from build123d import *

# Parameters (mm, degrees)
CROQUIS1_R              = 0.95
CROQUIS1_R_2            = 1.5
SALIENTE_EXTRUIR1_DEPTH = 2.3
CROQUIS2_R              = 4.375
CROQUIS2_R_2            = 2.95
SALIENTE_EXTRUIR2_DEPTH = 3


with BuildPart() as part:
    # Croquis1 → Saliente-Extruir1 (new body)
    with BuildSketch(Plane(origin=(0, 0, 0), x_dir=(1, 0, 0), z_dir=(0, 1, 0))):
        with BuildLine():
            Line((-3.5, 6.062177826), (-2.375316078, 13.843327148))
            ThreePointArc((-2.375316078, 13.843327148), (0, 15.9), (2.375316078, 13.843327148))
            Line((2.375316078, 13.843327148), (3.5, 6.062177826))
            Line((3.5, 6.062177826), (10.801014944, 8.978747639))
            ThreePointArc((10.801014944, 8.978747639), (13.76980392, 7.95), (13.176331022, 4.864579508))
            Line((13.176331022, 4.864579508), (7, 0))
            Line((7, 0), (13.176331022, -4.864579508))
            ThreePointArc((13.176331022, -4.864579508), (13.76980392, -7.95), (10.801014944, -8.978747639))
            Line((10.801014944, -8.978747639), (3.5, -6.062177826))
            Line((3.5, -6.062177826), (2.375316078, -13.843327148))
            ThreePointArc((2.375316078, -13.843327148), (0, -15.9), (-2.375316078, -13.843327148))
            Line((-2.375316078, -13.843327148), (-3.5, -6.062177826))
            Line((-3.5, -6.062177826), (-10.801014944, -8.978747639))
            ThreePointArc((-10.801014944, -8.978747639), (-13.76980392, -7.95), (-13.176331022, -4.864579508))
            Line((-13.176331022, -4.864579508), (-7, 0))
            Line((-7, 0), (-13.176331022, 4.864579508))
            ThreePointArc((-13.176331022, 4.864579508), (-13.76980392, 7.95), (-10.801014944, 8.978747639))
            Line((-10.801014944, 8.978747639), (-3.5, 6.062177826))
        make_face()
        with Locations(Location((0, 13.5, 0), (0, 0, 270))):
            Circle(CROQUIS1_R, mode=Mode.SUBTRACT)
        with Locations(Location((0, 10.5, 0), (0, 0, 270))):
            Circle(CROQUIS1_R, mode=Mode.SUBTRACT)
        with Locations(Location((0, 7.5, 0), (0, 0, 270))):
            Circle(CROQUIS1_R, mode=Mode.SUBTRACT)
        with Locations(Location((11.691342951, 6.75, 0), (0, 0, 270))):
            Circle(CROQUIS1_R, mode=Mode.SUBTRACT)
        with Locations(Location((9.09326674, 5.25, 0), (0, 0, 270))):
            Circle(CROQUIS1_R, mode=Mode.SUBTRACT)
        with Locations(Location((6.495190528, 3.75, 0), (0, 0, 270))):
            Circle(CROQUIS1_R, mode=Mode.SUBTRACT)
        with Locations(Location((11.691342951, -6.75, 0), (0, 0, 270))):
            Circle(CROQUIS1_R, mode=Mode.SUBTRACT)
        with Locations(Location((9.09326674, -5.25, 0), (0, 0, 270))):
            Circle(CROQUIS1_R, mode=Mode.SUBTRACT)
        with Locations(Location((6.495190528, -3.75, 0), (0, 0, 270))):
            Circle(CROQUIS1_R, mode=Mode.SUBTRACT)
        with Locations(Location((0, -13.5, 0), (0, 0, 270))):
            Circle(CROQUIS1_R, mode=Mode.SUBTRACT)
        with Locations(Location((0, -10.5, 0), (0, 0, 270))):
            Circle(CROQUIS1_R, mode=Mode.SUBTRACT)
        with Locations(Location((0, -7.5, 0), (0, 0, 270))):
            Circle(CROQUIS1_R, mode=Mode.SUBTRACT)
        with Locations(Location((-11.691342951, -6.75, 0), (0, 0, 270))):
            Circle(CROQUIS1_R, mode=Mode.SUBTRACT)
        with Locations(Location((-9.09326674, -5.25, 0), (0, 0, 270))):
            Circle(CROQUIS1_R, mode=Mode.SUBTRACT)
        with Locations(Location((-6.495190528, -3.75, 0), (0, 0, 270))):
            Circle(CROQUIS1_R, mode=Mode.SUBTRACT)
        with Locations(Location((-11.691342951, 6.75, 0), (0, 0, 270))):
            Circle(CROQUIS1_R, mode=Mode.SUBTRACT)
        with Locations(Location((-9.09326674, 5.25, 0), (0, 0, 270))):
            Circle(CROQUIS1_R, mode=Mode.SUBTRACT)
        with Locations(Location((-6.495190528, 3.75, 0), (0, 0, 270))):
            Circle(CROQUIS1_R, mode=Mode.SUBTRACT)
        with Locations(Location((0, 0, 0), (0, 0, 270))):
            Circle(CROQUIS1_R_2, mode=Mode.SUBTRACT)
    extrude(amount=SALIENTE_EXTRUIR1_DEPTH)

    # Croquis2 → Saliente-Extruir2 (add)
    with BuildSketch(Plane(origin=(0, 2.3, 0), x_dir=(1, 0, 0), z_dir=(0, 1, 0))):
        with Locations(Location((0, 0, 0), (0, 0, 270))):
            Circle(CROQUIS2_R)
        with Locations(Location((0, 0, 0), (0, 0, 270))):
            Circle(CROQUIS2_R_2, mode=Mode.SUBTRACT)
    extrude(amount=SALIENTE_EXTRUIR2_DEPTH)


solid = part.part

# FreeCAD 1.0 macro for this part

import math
import FreeCAD as App
import Part
import Sketcher

V = App.Vector

doc = App.newDocument("Part")
params = doc.addObject("Spreadsheet::Sheet", "Params")
for row, (alias, value) in enumerate([
    ("sketch1_diameter", "3 mm"),
    ("sketch1_diameter2", "1.9 mm"),
    ("sketch1_radius", "2.4 mm"),
    ("pad1_length", "2.3 mm"),
    ("sketch2_diameter", "5.9 mm"),
    ("sketch2_diameter2", "8.75 mm"),
    ("pad2_length", "3 mm"),
], start=1):
    params.set(f"A{row}", alias)
    params.set(f"B{row}", "=" + value)
    params.setAlias(f"B{row}", alias)

body = doc.addObject("PartDesign::Body", "Body")

# Sketch on XZ plane
sketch1 = body.newObject("Sketcher::SketchObject", "Sketch")
sketch1.AttachmentSupport = (doc.getObject("XZ_Plane"), [""])
sketch1.MapMode = "FlatFace"
sketch1.addGeometry(Part.LineSegment(V(-2.4, -13.8, 0), V(-3.5, -6.1, 0)), False)
sketch1.addGeometry(Part.LineSegment(V(-3.5, -6.1, 0), V(-10.8, -9, 0)), False)
sketch1.addGeometry(Part.ArcOfCircle(Part.Circle(V(-11.7, -6.8, 0), V(0, 0, 1), 2.4), math.radians(128), math.radians(292)), False)
sketch1.addGeometry(Part.LineSegment(V(-13.2, -4.9, 0), V(-7, 0, 0)), False)
sketch1.addGeometry(Part.LineSegment(V(-7, 0, 0), V(-13.2, 4.9, 0)), False)
sketch1.addGeometry(Part.ArcOfCircle(Part.Circle(V(-11.7, 6.8, 0), V(0, 0, 1), 2.4), math.radians(68), math.radians(232)), False)
sketch1.addGeometry(Part.LineSegment(V(-10.8, 9, 0), V(-3.5, 6.1, 0)), False)
sketch1.addGeometry(Part.LineSegment(V(-3.5, 6.1, 0), V(-2.4, 13.8, 0)), False)
sketch1.addGeometry(Part.ArcOfCircle(Part.Circle(V(0, 13.5, 0), V(0, 0, 1), 2.4), math.radians(8), math.radians(172)), False)
sketch1.addGeometry(Part.LineSegment(V(2.4, 13.8, 0), V(3.5, 6.1, 0)), False)
sketch1.addGeometry(Part.LineSegment(V(3.5, 6.1, 0), V(10.8, 9, 0)), False)
sketch1.addGeometry(Part.ArcOfCircle(Part.Circle(V(11.7, 6.8, 0), V(0, 0, 1), 2.4), math.radians(-52), math.radians(112)), False)
sketch1.addGeometry(Part.LineSegment(V(13.2, 4.9, 0), V(7, 0, 0)), False)
sketch1.addGeometry(Part.LineSegment(V(7, 0, 0), V(13.2, -4.9, 0)), False)
sketch1.addGeometry(Part.ArcOfCircle(Part.Circle(V(11.7, -6.8, 0), V(0, 0, 1), 2.4), math.radians(-112), math.radians(52)), False)
sketch1.addGeometry(Part.LineSegment(V(10.8, -9, 0), V(3.5, -6.1, 0)), False)
sketch1.addGeometry(Part.LineSegment(V(3.5, -6.1, 0), V(2.4, -13.8, 0)), False)
sketch1.addGeometry(Part.ArcOfCircle(Part.Circle(V(0, -13.5, 0), V(0, 0, 1), 2.4), math.radians(-172), math.radians(-8)), False)
sketch1.addGeometry(Part.Circle(V(11.7, 6.8, 0), V(0, 0, 1), 0.9), False)
sketch1.addGeometry(Part.Circle(V(9.1, 5.2, 0), V(0, 0, 1), 0.9), False)
sketch1.addGeometry(Part.Circle(V(6.5, 3.8, 0), V(0, 0, 1), 0.9), False)
sketch1.addGeometry(Part.Circle(V(0, 13.5, 0), V(0, 0, 1), 0.9), False)
sketch1.addGeometry(Part.Circle(V(0, 10.5, 0), V(0, 0, 1), 0.9), False)
sketch1.addGeometry(Part.Circle(V(0, 7.5, 0), V(0, 0, 1), 0.9), False)
sketch1.addGeometry(Part.Circle(V(-6.5, 3.8, 0), V(0, 0, 1), 0.9), False)
sketch1.addGeometry(Part.Circle(V(-9.1, 5.2, 0), V(0, 0, 1), 0.9), False)
sketch1.addGeometry(Part.Circle(V(-11.7, 6.8, 0), V(0, 0, 1), 0.9), False)
sketch1.addGeometry(Part.Circle(V(11.7, -6.8, 0), V(0, 0, 1), 0.9), False)
sketch1.addGeometry(Part.Circle(V(9.1, -5.2, 0), V(0, 0, 1), 0.9), False)
sketch1.addGeometry(Part.Circle(V(6.5, -3.8, 0), V(0, 0, 1), 0.9), False)
sketch1.addGeometry(Part.Circle(V(0, 0, 0), V(0, 0, 1), 1.5), False)
sketch1.addGeometry(Part.Circle(V(-6.5, -3.8, 0), V(0, 0, 1), 0.9), False)
sketch1.addGeometry(Part.Circle(V(-9.1, -5.2, 0), V(0, 0, 1), 0.9), False)
sketch1.addGeometry(Part.Circle(V(-11.7, -6.8, 0), V(0, 0, 1), 0.9), False)
sketch1.addGeometry(Part.Circle(V(0, -7.5, 0), V(0, 0, 1), 0.9), False)
sketch1.addGeometry(Part.Circle(V(0, -10.5, 0), V(0, 0, 1), 0.9), False)
sketch1.addGeometry(Part.Circle(V(0, -13.5, 0), V(0, 0, 1), 0.9), False)
sketch1.addConstraint(Sketcher.Constraint("Coincident", 0, 2, 1, 1))
sketch1.addConstraint(Sketcher.Constraint("Tangent", 1, 2, 2, 2))
sketch1.addConstraint(Sketcher.Constraint("Tangent", 2, 1, 3, 1))
sketch1.addConstraint(Sketcher.Constraint("Coincident", 3, 2, 4, 1))
sketch1.addConstraint(Sketcher.Constraint("Tangent", 4, 2, 5, 2))
sketch1.addConstraint(Sketcher.Constraint("Tangent", 5, 1, 6, 1))
sketch1.addConstraint(Sketcher.Constraint("Coincident", 6, 2, 7, 1))
sketch1.addConstraint(Sketcher.Constraint("Tangent", 7, 2, 8, 2))
sketch1.addConstraint(Sketcher.Constraint("Tangent", 8, 1, 9, 1))
sketch1.addConstraint(Sketcher.Constraint("Coincident", 9, 2, 10, 1))
sketch1.addConstraint(Sketcher.Constraint("Tangent", 10, 2, 11, 2))
sketch1.addConstraint(Sketcher.Constraint("Tangent", 11, 1, 12, 1))
sketch1.addConstraint(Sketcher.Constraint("Coincident", 12, 2, 13, 1))
sketch1.addConstraint(Sketcher.Constraint("Tangent", 13, 2, 14, 2))
sketch1.addConstraint(Sketcher.Constraint("Tangent", 14, 1, 15, 1))
sketch1.addConstraint(Sketcher.Constraint("Coincident", 15, 2, 16, 1))
sketch1.addConstraint(Sketcher.Constraint("Tangent", 16, 2, 17, 2))
sketch1.addConstraint(Sketcher.Constraint("Tangent", 17, 1, 0, 1))
sketch1.addConstraint(Sketcher.Constraint("Coincident", 30, 3, -1, 1))
sketch1.addConstraint(Sketcher.Constraint("Coincident", 18, 3, 11, 3))
sketch1.addConstraint(Sketcher.Constraint("Coincident", 21, 3, 8, 3))
sketch1.addConstraint(Sketcher.Constraint("Coincident", 26, 3, 5, 3))
sketch1.addConstraint(Sketcher.Constraint("Coincident", 27, 3, 14, 3))
sketch1.addConstraint(Sketcher.Constraint("Coincident", 33, 3, 2, 3))
sketch1.addConstraint(Sketcher.Constraint("Coincident", 36, 3, 17, 3))
sketch1.addConstraint(Sketcher.Constraint("Equal", 2, 5))
sketch1.addConstraint(Sketcher.Constraint("Equal", 5, 8))
sketch1.addConstraint(Sketcher.Constraint("Equal", 8, 11))
sketch1.addConstraint(Sketcher.Constraint("Equal", 11, 14))
sketch1.addConstraint(Sketcher.Constraint("Equal", 14, 17))
sketch1.addConstraint(Sketcher.Constraint("Equal", 18, 19))
sketch1.addConstraint(Sketcher.Constraint("Equal", 19, 20))
sketch1.addConstraint(Sketcher.Constraint("Equal", 20, 21))
sketch1.addConstraint(Sketcher.Constraint("Equal", 21, 22))
sketch1.addConstraint(Sketcher.Constraint("Equal", 22, 23))
sketch1.addConstraint(Sketcher.Constraint("Equal", 23, 24))
sketch1.addConstraint(Sketcher.Constraint("Equal", 24, 25))
sketch1.addConstraint(Sketcher.Constraint("Equal", 25, 26))
sketch1.addConstraint(Sketcher.Constraint("Equal", 26, 27))
sketch1.addConstraint(Sketcher.Constraint("Equal", 27, 28))
sketch1.addConstraint(Sketcher.Constraint("Equal", 28, 29))
sketch1.addConstraint(Sketcher.Constraint("Equal", 29, 31))
sketch1.addConstraint(Sketcher.Constraint("Equal", 31, 32))
sketch1.addConstraint(Sketcher.Constraint("Equal", 32, 33))
sketch1.addConstraint(Sketcher.Constraint("Equal", 33, 34))
sketch1.addConstraint(Sketcher.Constraint("Equal", 34, 35))
sketch1.addConstraint(Sketcher.Constraint("Equal", 35, 36))
sketch1.addConstraint(Sketcher.Constraint("Symmetric", 2, 3, 11, 3, -1, 1))
sketch1.addConstraint(Sketcher.Constraint("Symmetric", 5, 3, 14, 3, -1, 1))
sketch1.addConstraint(Sketcher.Constraint("Symmetric", 8, 3, 17, 3, -1, 1))
sketch1.addConstraint(Sketcher.Constraint("Symmetric", 25, 3, 28, 3, -1, 1))
sketch1.addConstraint(Sketcher.Constraint("Symmetric", 24, 3, 29, 3, -1, 1))
sketch1.addConstraint(Sketcher.Constraint("Symmetric", 20, 3, 31, 3, -1, 1))
sketch1.addConstraint(Sketcher.Constraint("Symmetric", 19, 3, 32, 3, -1, 1))
sketch1.addConstraint(Sketcher.Constraint("Symmetric", 23, 3, 34, 3, -1, 1))
sketch1.addConstraint(Sketcher.Constraint("Symmetric", 22, 3, 35, 3, -1, 1))
sketch1.addConstraint(Sketcher.Constraint("Symmetric", 0, 2, 9, 2, -1, 1))
sketch1.addConstraint(Sketcher.Constraint("Symmetric", 3, 2, 12, 2, -1, 1))
sketch1.addConstraint(Sketcher.Constraint("Symmetric", 6, 2, 15, 2, -1, 1))
sketch1.addConstraint(Sketcher.Constraint("Symmetric", 5, 3, 11, 3, -2))
sketch1.addConstraint(Sketcher.Constraint("Symmetric", 20, 3, 24, 3, -2))
sketch1.addConstraint(Sketcher.Constraint("Symmetric", 19, 3, 25, 3, -2))
sketch1.addConstraint(Sketcher.Constraint("Symmetric", 7, 2, 8, 1, -2))
sketch1.addConstraint(Sketcher.Constraint("PointOnObject", 22, 3, -2))
sketch1.addConstraint(Sketcher.Constraint("PointOnObject", 23, 3, -2))
sketch1.addConstraint(Sketcher.Constraint("PointOnObject", 3, 2, -1))
sketch1.addConstraint(Sketcher.Constraint("Horizontal", 6, 2, 9, 2))
sketch1.addConstraint(Sketcher.Constraint("Equal", 0, 1))
sketch1.addConstraint(Sketcher.Constraint("Equal", 1, 3))
sketch1.addConstraint(Sketcher.Constraint("Diameter", 30, 3.0))
sketch1.addConstraint(Sketcher.Constraint("Diameter", 18, 1.9))
sketch1.addConstraint(Sketcher.Constraint("Radius", 2, 2.4))
sketch1.addConstraint(Sketcher.Constraint("DistanceX", 3, 2, -1, 1, 7.0))
sketch1.addConstraint(Sketcher.Constraint("DistanceY", 17, 3, 8, 3, 27.0))
sketch1.addConstraint(Sketcher.Constraint("DistanceY", 14, 3, 19, 3, 12.0))
sketch1.addConstraint(Sketcher.Constraint("DistanceY", 20, 3, 11, 3, 3.0))
sketch1.addConstraint(Sketcher.Constraint("DistanceY", 22, 3, 8, 3, 3.0))
sketch1.addConstraint(Sketcher.Constraint("DistanceY", 23, 3, 22, 3, 3.0))
sketch1.addConstraint(Sketcher.Constraint("DistanceX", 0, 2, -1, 1, 3.5))
sketch1.addConstraint(Sketcher.Constraint("DistanceY", 2, 3, 5, 3, 13.5))
sketch1.addConstraint(Sketcher.Constraint("DistanceX", -1, 1, 20, 3, 6.495191))
sketch1.addConstraint(Sketcher.Constraint("DistanceX", 1, 2, 32, 3, 1.707748))
sketch1.setExpression("Constraints[69]", "Params.sketch1_diameter")
sketch1.setExpression("Constraints[70]", "Params.sketch1_diameter2")
sketch1.setExpression("Constraints[71]", "Params.sketch1_radius")
pad1 = body.newObject("PartDesign::Pad", "Pad")
pad1.Profile = sketch1
pad1.setExpression("Length", "Params.pad1_length")
pad1.Reversed = True

# Sketch on XZ plane
sketch2 = body.newObject("Sketcher::SketchObject", "Sketch001")
sketch2.AttachmentSupport = (doc.getObject("XZ_Plane"), [""])
sketch2.MapMode = "FlatFace"
sketch2.AttachmentOffset = App.Placement(V(0, 0, -2.3), App.Rotation())
sketch2.addGeometry(Part.Circle(V(0, 0, 0), V(0, 0, 1), 4.4), False)
sketch2.addGeometry(Part.Circle(V(0, 0, 0), V(0, 0, 1), 3), False)
sketch2.addConstraint(Sketcher.Constraint("Coincident", 0, 3, -1, 1))
sketch2.addConstraint(Sketcher.Constraint("Coincident", 1, 3, -1, 1))
sketch2.addConstraint(Sketcher.Constraint("Diameter", 1, 5.9))
sketch2.addConstraint(Sketcher.Constraint("Diameter", 0, 8.75))
sketch2.setExpression("Constraints[2]", "Params.sketch2_diameter")
sketch2.setExpression("Constraints[3]", "Params.sketch2_diameter2")
pad2 = body.newObject("PartDesign::Pad", "Pad001")
pad2.Profile = sketch2
pad2.setExpression("Length", "Params.pad2_length")
pad2.Reversed = True

doc.recompute()
